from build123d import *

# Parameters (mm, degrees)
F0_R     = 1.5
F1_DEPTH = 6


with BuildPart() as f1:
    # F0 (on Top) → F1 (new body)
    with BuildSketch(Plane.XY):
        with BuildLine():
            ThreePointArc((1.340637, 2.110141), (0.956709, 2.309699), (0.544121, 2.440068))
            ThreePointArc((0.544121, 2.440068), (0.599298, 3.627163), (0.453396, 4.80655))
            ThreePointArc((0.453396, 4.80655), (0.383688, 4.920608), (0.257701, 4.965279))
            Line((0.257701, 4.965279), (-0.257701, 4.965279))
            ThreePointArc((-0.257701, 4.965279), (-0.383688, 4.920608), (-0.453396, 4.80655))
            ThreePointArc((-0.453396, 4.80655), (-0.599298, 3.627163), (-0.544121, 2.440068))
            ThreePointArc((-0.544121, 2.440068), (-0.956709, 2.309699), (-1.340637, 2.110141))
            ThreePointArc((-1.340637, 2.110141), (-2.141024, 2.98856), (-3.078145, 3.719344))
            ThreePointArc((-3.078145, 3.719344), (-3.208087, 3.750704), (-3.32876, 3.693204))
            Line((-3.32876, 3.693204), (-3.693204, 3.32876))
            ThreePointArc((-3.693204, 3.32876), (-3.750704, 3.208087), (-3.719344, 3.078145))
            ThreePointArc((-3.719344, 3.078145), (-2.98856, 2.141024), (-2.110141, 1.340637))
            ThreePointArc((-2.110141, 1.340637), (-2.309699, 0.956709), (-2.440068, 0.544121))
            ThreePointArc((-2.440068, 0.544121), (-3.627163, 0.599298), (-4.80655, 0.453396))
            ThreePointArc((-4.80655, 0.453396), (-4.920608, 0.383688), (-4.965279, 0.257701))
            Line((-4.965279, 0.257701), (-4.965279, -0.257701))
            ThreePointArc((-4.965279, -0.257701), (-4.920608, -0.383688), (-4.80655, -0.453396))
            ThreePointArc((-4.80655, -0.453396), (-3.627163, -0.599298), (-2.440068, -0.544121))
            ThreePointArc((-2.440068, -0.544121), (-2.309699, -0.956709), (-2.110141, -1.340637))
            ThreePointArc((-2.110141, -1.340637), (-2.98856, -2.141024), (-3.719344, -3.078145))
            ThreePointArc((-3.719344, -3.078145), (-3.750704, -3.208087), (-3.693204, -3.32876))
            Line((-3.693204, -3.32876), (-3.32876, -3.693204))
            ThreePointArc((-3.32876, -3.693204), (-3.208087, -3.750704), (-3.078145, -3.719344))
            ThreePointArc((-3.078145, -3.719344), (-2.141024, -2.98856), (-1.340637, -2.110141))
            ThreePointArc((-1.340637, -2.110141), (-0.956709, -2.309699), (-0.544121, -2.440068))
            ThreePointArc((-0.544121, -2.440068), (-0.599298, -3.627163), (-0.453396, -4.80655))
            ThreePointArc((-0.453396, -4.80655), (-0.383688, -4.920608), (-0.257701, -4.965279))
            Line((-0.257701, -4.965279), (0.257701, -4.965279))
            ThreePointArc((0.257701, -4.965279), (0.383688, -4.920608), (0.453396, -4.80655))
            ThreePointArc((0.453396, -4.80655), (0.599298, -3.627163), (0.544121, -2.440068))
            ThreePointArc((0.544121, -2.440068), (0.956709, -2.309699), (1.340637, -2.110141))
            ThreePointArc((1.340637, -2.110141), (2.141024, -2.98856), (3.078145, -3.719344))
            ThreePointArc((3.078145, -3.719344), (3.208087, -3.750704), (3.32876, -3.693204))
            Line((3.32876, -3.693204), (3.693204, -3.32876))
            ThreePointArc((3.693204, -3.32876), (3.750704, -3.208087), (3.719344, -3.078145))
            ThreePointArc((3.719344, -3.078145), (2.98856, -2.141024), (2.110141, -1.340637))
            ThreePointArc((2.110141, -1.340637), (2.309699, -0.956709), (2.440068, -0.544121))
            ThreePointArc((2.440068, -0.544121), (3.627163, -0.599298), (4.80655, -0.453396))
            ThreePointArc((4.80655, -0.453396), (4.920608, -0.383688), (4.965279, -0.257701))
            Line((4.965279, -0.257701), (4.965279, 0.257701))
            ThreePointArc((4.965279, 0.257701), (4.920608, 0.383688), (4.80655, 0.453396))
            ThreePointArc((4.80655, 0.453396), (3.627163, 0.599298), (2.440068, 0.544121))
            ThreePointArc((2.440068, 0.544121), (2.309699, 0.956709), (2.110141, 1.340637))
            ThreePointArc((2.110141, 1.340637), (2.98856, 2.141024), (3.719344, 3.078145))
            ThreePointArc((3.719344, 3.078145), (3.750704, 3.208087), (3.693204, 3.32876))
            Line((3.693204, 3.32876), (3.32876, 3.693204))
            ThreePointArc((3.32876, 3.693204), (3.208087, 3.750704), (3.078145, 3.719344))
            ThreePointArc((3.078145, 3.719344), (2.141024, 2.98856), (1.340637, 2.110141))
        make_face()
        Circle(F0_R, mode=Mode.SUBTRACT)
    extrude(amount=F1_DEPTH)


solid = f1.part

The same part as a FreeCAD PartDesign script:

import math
import FreeCAD as App
import Part
import Sketcher
Q = App.Units.Quantity

doc = App.newDocument("Part")
params = doc.addObject("Spreadsheet::Sheet", "Params")
for row, (alias, value) in enumerate([
    ("sketch1_diameter", "3 mm"),
    ("sketch1_radius", "0.200001 mm"),
    ("pad1_length", "6 mm"),
], start=1):
    params.set(f"A{row}", alias)
    params.set(f"B{row}", "=" + value)
    params.setAlias(f"B{row}", alias)

body = doc.addObject("PartDesign::Body", "Body")

# Sketch on XY plane
sketch1 = doc.addObject("Sketcher::SketchObject", "Sketch")
body.addObject(sketch1)
sketch1.AttachmentSupport = (doc.XY_Plane, [""])
sketch1.MapMode = "FlatFace"
sketch1.addGeometry([
    Part.ArcOfCircle(Part.Circle(App.Vector(0.000004, 0.000006, 0), App.Vector(0, 0, 1), 2.499993), math.radians(57.570972), math.radians(77.429118)),  # 0
    Part.ArcOfCircle(Part.Circle(App.Vector(-6.413705, 3.358302, 0), App.Vector(0, 0, 1), 7.018155), math.radians(-7.517963), math.radians(11.908966)),  # 1
    Part.ArcOfCircle(Part.Circle(App.Vector(0.2577, 4.765278, 0), App.Vector(0, 0, 1), 0.200001), math.radians(11.908967), math.radians(89.999739)),  # 2
    Part.LineSegment(App.Vector(0.257701, 4.965279, 0), App.Vector(-0.257701, 4.965279, 0)),  # 3
    Part.ArcOfCircle(Part.Circle(App.Vector(-0.2577, 4.765278, 0), App.Vector(0, 0, 1), 0.200001), math.radians(90.000261), math.radians(168.091033)),  # 4
    Part.ArcOfCircle(Part.Circle(App.Vector(6.413705, 3.358302, 0), App.Vector(0, 0, 1), 7.018155), math.radians(168.091034), math.radians(187.517963)),  # 5
    Part.ArcOfCircle(Part.Circle(App.Vector(-0.000004, 0.000006, 0), App.Vector(0, 0, 1), 2.499993), math.radians(102.570882), math.radians(122.429028)),  # 6
    Part.ArcOfCircle(Part.Circle(App.Vector(-6.909847, -2.16049, 0), App.Vector(0, 0, 1), 7.018147), math.radians(37.482033), math.radians(56.908986)),  # 7
    Part.ArcOfCircle(Part.Circle(App.Vector(-3.187339, 3.551785, 0), App.Vector(0, 0, 1), 0.199999), math.radians(56.908857), math.radians(135.000371)),  # 8
    Part.LineSegment(App.Vector(-3.32876, 3.693204, 0), App.Vector(-3.693204, 3.32876, 0)),  # 9
    Part.ArcOfCircle(Part.Circle(App.Vector(-3.551785, 3.187339, 0), App.Vector(0, 0, 1), 0.199999), math.radians(134.999629), math.radians(213.091143)),  # 10
    Part.ArcOfCircle(Part.Circle(App.Vector(2.16049, 6.909847, 0), App.Vector(0, 0, 1), 7.018147), math.radians(-146.908986), math.radians(-127.482033)),  # 11
    Part.ArcOfCircle(Part.Circle(App.Vector(-0.000006, 0.000004, 0), App.Vector(0, 0, 1), 2.499993), math.radians(147.570972), math.radians(167.429118)),  # 12
    Part.ArcOfCircle(Part.Circle(App.Vector(-3.358302, -6.413705, 0), App.Vector(0, 0, 1), 7.018155), math.radians(82.482037), math.radians(101.908966)),  # 13
    Part.ArcOfCircle(Part.Circle(App.Vector(-4.765278, 0.2577, 0), App.Vector(0, 0, 1), 0.200001), math.radians(101.908967), math.radians(179.999739)),  # 14
    Part.LineSegment(App.Vector(-4.965279, 0.257701, 0), App.Vector(-4.965279, -0.257701, 0)),  # 15
    Part.ArcOfCircle(Part.Circle(App.Vector(-4.765278, -0.2577, 0), App.Vector(0, 0, 1), 0.200001), math.radians(-179.999739), math.radians(-101.908967)),  # 16
    Part.ArcOfCircle(Part.Circle(App.Vector(-3.358302, 6.413705, 0), App.Vector(0, 0, 1), 7.018155), math.radians(-101.908966), math.radians(-82.482037)),  # 17
    Part.ArcOfCircle(Part.Circle(App.Vector(-0.000006, -0.000004, 0), App.Vector(0, 0, 1), 2.499993), math.radians(-167.429118), math.radians(-147.570972)),  # 18
    Part.ArcOfCircle(Part.Circle(App.Vector(2.16049, -6.909847, 0), App.Vector(0, 0, 1), 7.018147), math.radians(127.482033), math.radians(146.908986)),  # 19
    Part.ArcOfCircle(Part.Circle(App.Vector(-3.551785, -3.187339, 0), App.Vector(0, 0, 1), 0.199999), math.radians(146.908857), math.radians(225.000371)),  # 20
    Part.LineSegment(App.Vector(-3.693204, -3.32876, 0), App.Vector(-3.32876, -3.693204, 0)),  # 21
    Part.ArcOfCircle(Part.Circle(App.Vector(-3.187339, -3.551785, 0), App.Vector(0, 0, 1), 0.199999), math.radians(-135.000371), math.radians(-56.908857)),  # 22
    Part.ArcOfCircle(Part.Circle(App.Vector(-6.909847, 2.16049, 0), App.Vector(0, 0, 1), 7.018147), math.radians(-56.908986), math.radians(-37.482033)),  # 23
    Part.ArcOfCircle(Part.Circle(App.Vector(-0.000004, -0.000006, 0), App.Vector(0, 0, 1), 2.499993), math.radians(-122.429028), math.radians(-102.570882)),  # 24
    Part.ArcOfCircle(Part.Circle(App.Vector(6.413705, -3.358302, 0), App.Vector(0, 0, 1), 7.018155), math.radians(172.482037), math.radians(191.908966)),  # 25
    Part.ArcOfCircle(Part.Circle(App.Vector(-0.2577, -4.765278, 0), App.Vector(0, 0, 1), 0.200001), math.radians(-168.091033), math.radians(-90.000261)),  # 26
    Part.LineSegment(App.Vector(-0.257701, -4.965279, 0), App.Vector(0.257701, -4.965279, 0)),  # 27
    Part.ArcOfCircle(Part.Circle(App.Vector(0.2577, -4.765278, 0), App.Vector(0, 0, 1), 0.200001), math.radians(-89.999739), math.radians(-11.908967)),  # 28
    Part.ArcOfCircle(Part.Circle(App.Vector(-6.413705, -3.358302, 0), App.Vector(0, 0, 1), 7.018155), math.radians(-11.908966), math.radians(7.517963)),  # 29
    Part.ArcOfCircle(Part.Circle(App.Vector(0.000004, -0.000006, 0), App.Vector(0, 0, 1), 2.499993), math.radians(-77.429118), math.radians(-57.570972)),  # 30
    Part.ArcOfCircle(Part.Circle(App.Vector(6.909847, 2.16049, 0), App.Vector(0, 0, 1), 7.018147), math.radians(-142.517967), math.radians(-123.091014)),  # 31
    Part.ArcOfCircle(Part.Circle(App.Vector(3.187339, -3.551785, 0), App.Vector(0, 0, 1), 0.199999), math.radians(-123.091143), math.radians(-44.999629)),  # 32
    Part.LineSegment(App.Vector(3.32876, -3.693204, 0), App.Vector(3.693204, -3.32876, 0)),  # 33
    Part.ArcOfCircle(Part.Circle(App.Vector(3.551785, -3.187339, 0), App.Vector(0, 0, 1), 0.199999), math.radians(-45.000371), math.radians(33.091143)),  # 34
    Part.ArcOfCircle(Part.Circle(App.Vector(-2.16049, -6.909847, 0), App.Vector(0, 0, 1), 7.018147), math.radians(33.091014), math.radians(52.517967)),  # 35
    Part.ArcOfCircle(Part.Circle(App.Vector(0.000006, -0.000004, 0), App.Vector(0, 0, 1), 2.499993), math.radians(-32.429028), math.radians(-12.570882)),  # 36
    Part.ArcOfCircle(Part.Circle(App.Vector(3.358302, 6.413705, 0), App.Vector(0, 0, 1), 7.018155), math.radians(-97.517963), math.radians(-78.091034)),  # 37
    Part.ArcOfCircle(Part.Circle(App.Vector(4.765278, -0.2577, 0), App.Vector(0, 0, 1), 0.200001), math.radians(-78.091033), math.radians(-0.000261)),  # 38
    Part.LineSegment(App.Vector(4.965279, -0.257701, 0), App.Vector(4.965279, 0.257701, 0)),  # 39
    Part.ArcOfCircle(Part.Circle(App.Vector(4.765278, 0.2577, 0), App.Vector(0, 0, 1), 0.200001), math.radians(0.000261), math.radians(78.091033)),  # 40
    Part.ArcOfCircle(Part.Circle(App.Vector(3.358302, -6.413705, 0), App.Vector(0, 0, 1), 7.018155), math.radians(78.091034), math.radians(97.517963)),  # 41
    Part.ArcOfCircle(Part.Circle(App.Vector(0.000006, 0.000004, 0), App.Vector(0, 0, 1), 2.499993), math.radians(12.570882), math.radians(32.429028)),  # 42
    Part.ArcOfCircle(Part.Circle(App.Vector(-2.16049, 6.909847, 0), App.Vector(0, 0, 1), 7.018147), math.radians(-52.517967), math.radians(-33.091014)),  # 43
    Part.ArcOfCircle(Part.Circle(App.Vector(3.551785, 3.187339, 0), App.Vector(0, 0, 1), 0.199999), math.radians(-33.091143), math.radians(45.000371)),  # 44
    Part.LineSegment(App.Vector(3.693204, 3.32876, 0), App.Vector(3.32876, 3.693204, 0)),  # 45
    Part.ArcOfCircle(Part.Circle(App.Vector(3.187339, 3.551785, 0), App.Vector(0, 0, 1), 0.199999), math.radians(44.999629), math.radians(123.091143)),  # 46
    Part.ArcOfCircle(Part.Circle(App.Vector(6.909847, -2.16049, 0), App.Vector(0, 0, 1), 7.018147), math.radians(123.091014), math.radians(142.517967)),  # 47
    Part.Circle(App.Vector(0, 0, 0), App.Vector(0, 0, 1), 1.5),  # 48
], False)
sketch1.addConstraint([
    Sketcher.Constraint("Coincident", 0, 2, 1, 1),
    Sketcher.Constraint("Tangent", 1, 2, 2, 1),
    Sketcher.Constraint("Coincident", 2, 2, 3, 1),
    Sketcher.Constraint("Coincident", 3, 2, 4, 1),
    Sketcher.Constraint("Tangent", 4, 2, 5, 1),
    Sketcher.Constraint("Coincident", 5, 2, 6, 1),
    Sketcher.Constraint("Coincident", 6, 2, 7, 1),
    Sketcher.Constraint("Coincident", 7, 2, 8, 1),
    Sketcher.Constraint("Coincident", 8, 2, 9, 1),
    Sketcher.Constraint("Coincident", 9, 2, 10, 1),
    Sketcher.Constraint("Coincident", 10, 2, 11, 1),
    Sketcher.Constraint("Coincident", 11, 2, 12, 1),
    Sketcher.Constraint("Coincident", 12, 2, 13, 1),
    Sketcher.Constraint("Tangent", 13, 2, 14, 1),
    Sketcher.Constraint("Coincident", 14, 2, 15, 1),
    Sketcher.Constraint("Coincident", 15, 2, 16, 1),
    Sketcher.Constraint("Tangent", 16, 2, 17, 1),
    Sketcher.Constraint("Coincident", 17, 2, 18, 1),
    Sketcher.Constraint("Coincident", 18, 2, 19, 1),
    Sketcher.Constraint("Coincident", 19, 2, 20, 1),
    Sketcher.Constraint("Coincident", 20, 2, 21, 1),
    Sketcher.Constraint("Coincident", 21, 2, 22, 1),
    Sketcher.Constraint("Coincident", 22, 2, 23, 1),
    Sketcher.Constraint("Coincident", 23, 2, 24, 1),
    Sketcher.Constraint("Coincident", 24, 2, 25, 1),
    Sketcher.Constraint("Tangent", 25, 2, 26, 1),
    Sketcher.Constraint("Coincident", 26, 2, 27, 1),
    Sketcher.Constraint("Coincident", 27, 2, 28, 1),
    Sketcher.Constraint("Tangent", 28, 2, 29, 1),
    Sketcher.Constraint("Coincident", 29, 2, 30, 1),
    Sketcher.Constraint("Coincident", 30, 2, 31, 1),
    Sketcher.Constraint("Coincident", 31, 2, 32, 1),
    Sketcher.Constraint("Coincident", 32, 2, 33, 1),
    Sketcher.Constraint("Coincident", 33, 2, 34, 1),
    Sketcher.Constraint("Coincident", 34, 2, 35, 1),
    Sketcher.Constraint("Coincident", 35, 2, 36, 1),
    Sketcher.Constraint("Coincident", 36, 2, 37, 1),
    Sketcher.Constraint("Tangent", 37, 2, 38, 1),
    Sketcher.Constraint("Coincident", 38, 2, 39, 1),
    Sketcher.Constraint("Coincident", 39, 2, 40, 1),
    Sketcher.Constraint("Tangent", 40, 2, 41, 1),
    Sketcher.Constraint("Coincident", 41, 2, 42, 1),
    Sketcher.Constraint("Coincident", 42, 2, 43, 1),
    Sketcher.Constraint("Coincident", 43, 2, 44, 1),
    Sketcher.Constraint("Coincident", 44, 2, 45, 1),
    Sketcher.Constraint("Coincident", 45, 2, 46, 1),
    Sketcher.Constraint("Coincident", 46, 2, 47, 1),
    Sketcher.Constraint("Coincident", 47, 2, 0, 1),
    Sketcher.Constraint("Horizontal", 3),
    Sketcher.Constraint("Vertical", 15),
    Sketcher.Constraint("Horizontal", 27),
    Sketcher.Constraint("Vertical", 39),
    Sketcher.Constraint("Coincident", 0, 3, -1, 1),
    Sketcher.Constraint("Coincident", 6, 3, -1, 1),
    Sketcher.Constraint("Coincident", 12, 3, -1, 1),
    Sketcher.Constraint("Coincident", 18, 3, -1, 1),
    Sketcher.Constraint("Coincident", 24, 3, -1, 1),
    Sketcher.Constraint("Coincident", 30, 3, -1, 1),
    Sketcher.Constraint("Coincident", 36, 3, -1, 1),
    Sketcher.Constraint("Coincident", 42, 3, -1, 1),
    Sketcher.Constraint("Coincident", 48, 3, -1, 1),
    Sketcher.Constraint("Equal", 2, 4),
    Sketcher.Constraint("Equal", 1, 5),
    Sketcher.Constraint("Equal", 0, 6),
    Sketcher.Constraint("Equal", 4, 8),
    Sketcher.Constraint("Equal", 8, 10),
    Sketcher.Constraint("Equal", 7, 11),
    Sketcher.Constraint("Equal", 6, 12),
    Sketcher.Constraint("Equal", 5, 13),
    Sketcher.Constraint("Equal", 10, 14),
    Sketcher.Constraint("Equal", 14, 16),
    Sketcher.Constraint("Equal", 13, 17),
    Sketcher.Constraint("Equal", 12, 18),
    Sketcher.Constraint("Equal", 11, 19),
    Sketcher.Constraint("Equal", 16, 20),
    Sketcher.Constraint("Equal", 20, 22),
    Sketcher.Constraint("Equal", 19, 23),
    Sketcher.Constraint("Equal", 18, 24),
    Sketcher.Constraint("Equal", 17, 25),
    Sketcher.Constraint("Equal", 22, 26),
    Sketcher.Constraint("Equal", 26, 28),
    Sketcher.Constraint("Equal", 25, 29),
    Sketcher.Constraint("Equal", 24, 30),
    Sketcher.Constraint("Equal", 23, 31),
    Sketcher.Constraint("Equal", 28, 32),
    Sketcher.Constraint("Equal", 32, 34),
    Sketcher.Constraint("Equal", 31, 35),
    Sketcher.Constraint("Equal", 30, 36),
    Sketcher.Constraint("Equal", 29, 37),
    Sketcher.Constraint("Equal", 34, 38),
    Sketcher.Constraint("Equal", 38, 40),
    Sketcher.Constraint("Equal", 37, 41),
    Sketcher.Constraint("Equal", 36, 42),
    Sketcher.Constraint("Equal", 35, 43),
    Sketcher.Constraint("Equal", 40, 44),
    Sketcher.Constraint("Equal", 44, 46),
    Sketcher.Constraint("Equal", 43, 47),
    Sketcher.Constraint("Symmetric", 1, 3, 25, 3, -1, 1),
    Sketcher.Constraint("Symmetric", 4, 3, 28, 3, -1, 1),
    Sketcher.Constraint("Symmetric", 7, 3, 31, 3, -1, 1),
    Sketcher.Constraint("Symmetric", 10, 3, 34, 3, -1, 1),
    Sketcher.Constraint("Symmetric", 13, 3, 37, 3, -1, 1),
    Sketcher.Constraint("Symmetric", 16, 3, 40, 3, -1, 1),
    Sketcher.Constraint("Symmetric", 19, 3, 43, 3, -1, 1),
    Sketcher.Constraint("Symmetric", 22, 3, 46, 3, -1, 1),
    Sketcher.Constraint("Symmetric", 8, 2, 32, 2, -1, 1),
    Sketcher.Constraint("Symmetric", 20, 2, 44, 2, -1, 1),
    Sketcher.Constraint("Symmetric", 1, 3, 5, 3, -2),
    Sketcher.Constraint("Symmetric", 23, 3, 31, 3, -2),
    Sketcher.Constraint("Symmetric", 20, 3, 34, 3, -2),
    Sketcher.Constraint("Symmetric", 17, 3, 37, 3, -2),
    Sketcher.Constraint("Symmetric", 21, 2, 32, 2, -2),
    Sketcher.Constraint("Perpendicular", 9, 21),
    Sketcher.Constraint("Horizontal", 25, 3, 29, 3),
    Sketcher.Constraint("Horizontal", 19, 3, 35, 3),
    Sketcher.Constraint("Horizontal", 13, 3, 41, 3),
    Sketcher.Constraint("Horizontal", 11, 3, 43, 3),
    Sketcher.Constraint("Horizontal", 7, 3, 47, 3),
    Sketcher.Constraint("Horizontal", 40, 3, 14, 2),
    Sketcher.Constraint("Horizontal", 38, 3, 15, 2),
    Sketcher.Constraint("Horizontal", 22, 2, 31, 2),
    Sketcher.Constraint("Horizontal", 20, 2, 33, 2),
    Sketcher.Constraint("Horizontal", 19, 2, 34, 2),
    Sketcher.Constraint("Horizontal", 15, 2, 38, 2),
    Sketcher.Constraint("Horizontal", 14, 2, 39, 2),
    Sketcher.Constraint("Horizontal", 10, 2, 43, 2),
    Sketcher.Constraint("Horizontal", 9, 2, 44, 2),
    Sketcher.Constraint("Horizontal", 8, 2, 45, 2),
    Sketcher.Constraint("Horizontal", 7, 2, 46, 2),
    Sketcher.Constraint("Vertical", 28, 3, 2, 2),
    Sketcher.Constraint("Vertical", 26, 3, 3, 2),
    Sketcher.Constraint("Vertical", 10, 2, 19, 2),
    Sketcher.Constraint("Vertical", 7, 2, 22, 2),
    Sketcher.Constraint("Vertical", 3, 2, 26, 2),
    Sketcher.Constraint("Vertical", 2, 2, 27, 2),
    Sketcher.Constraint("Equal", 27, 15),
    Sketcher.Constraint("Diameter", 48, Q("3 mm")),
    Sketcher.Constraint("Radius", 2, Q("0.200001 mm")),
    Sketcher.Constraint("Radius", 0, Q("2.499993 mm")),
    Sketcher.Constraint("Radius", 1, Q("7.018155 mm")),
    Sketcher.Constraint("Radius", 7, Q("7.018147 mm")),
    Sketcher.Constraint("Distance", 9, Q("0.515402 mm")),
    Sketcher.Constraint("DistanceX", -1, 1, 2, 3, Q("0.2577 mm")),
    Sketcher.Constraint("DistanceY", -1, 1, 2, 3, Q("4.765278 mm")),
    Sketcher.Constraint("DistanceY", 7, 3, -1, 1, Q("2.16049 mm")),
    Sketcher.Constraint("DistanceX", 8, 3, -1, 1, Q("3.187339 mm")),
    Sketcher.Constraint("DistanceY", -1, 1, 10, 3, Q("3.187339 mm")),
    Sketcher.Constraint("DistanceX", -1, 1, 11, 3, Q("2.16049 mm")),
    Sketcher.Constraint("DistanceX", 14, 3, -1, 1, Q("4.765278 mm")),
    Sketcher.Constraint("DistanceX", -1, 1, 0, 2, Q("0.544121 mm")),
    Sketcher.Constraint("DistanceY", -1, 1, 6, 2, Q("2.110141 mm")),
    Sketcher.Constraint("DistanceX", 8, 2, -1, 1, Q("3.32876 mm")),
    Sketcher.Constraint("DistanceY", -1, 1, 12, 2, Q("0.544121 mm")),
    Sketcher.Constraint("DistanceX", 7, 2, -1, 1, Q("3.078145 mm")),
    Sketcher.Constraint("DistanceX", 10, 2, -1, 1, Q("3.719344 mm")),
])
sketch1.setExpression("Constraints[136]", "Params.sketch1_diameter")
sketch1.setExpression("Constraints[137]", "Params.sketch1_radius")
pad1 = doc.addObject("PartDesign::Pad", "Pad")
body.addObject(pad1)
pad1.Profile = sketch1
pad1.setExpression("Length", "Params.pad1_length")

doc.recompute()
